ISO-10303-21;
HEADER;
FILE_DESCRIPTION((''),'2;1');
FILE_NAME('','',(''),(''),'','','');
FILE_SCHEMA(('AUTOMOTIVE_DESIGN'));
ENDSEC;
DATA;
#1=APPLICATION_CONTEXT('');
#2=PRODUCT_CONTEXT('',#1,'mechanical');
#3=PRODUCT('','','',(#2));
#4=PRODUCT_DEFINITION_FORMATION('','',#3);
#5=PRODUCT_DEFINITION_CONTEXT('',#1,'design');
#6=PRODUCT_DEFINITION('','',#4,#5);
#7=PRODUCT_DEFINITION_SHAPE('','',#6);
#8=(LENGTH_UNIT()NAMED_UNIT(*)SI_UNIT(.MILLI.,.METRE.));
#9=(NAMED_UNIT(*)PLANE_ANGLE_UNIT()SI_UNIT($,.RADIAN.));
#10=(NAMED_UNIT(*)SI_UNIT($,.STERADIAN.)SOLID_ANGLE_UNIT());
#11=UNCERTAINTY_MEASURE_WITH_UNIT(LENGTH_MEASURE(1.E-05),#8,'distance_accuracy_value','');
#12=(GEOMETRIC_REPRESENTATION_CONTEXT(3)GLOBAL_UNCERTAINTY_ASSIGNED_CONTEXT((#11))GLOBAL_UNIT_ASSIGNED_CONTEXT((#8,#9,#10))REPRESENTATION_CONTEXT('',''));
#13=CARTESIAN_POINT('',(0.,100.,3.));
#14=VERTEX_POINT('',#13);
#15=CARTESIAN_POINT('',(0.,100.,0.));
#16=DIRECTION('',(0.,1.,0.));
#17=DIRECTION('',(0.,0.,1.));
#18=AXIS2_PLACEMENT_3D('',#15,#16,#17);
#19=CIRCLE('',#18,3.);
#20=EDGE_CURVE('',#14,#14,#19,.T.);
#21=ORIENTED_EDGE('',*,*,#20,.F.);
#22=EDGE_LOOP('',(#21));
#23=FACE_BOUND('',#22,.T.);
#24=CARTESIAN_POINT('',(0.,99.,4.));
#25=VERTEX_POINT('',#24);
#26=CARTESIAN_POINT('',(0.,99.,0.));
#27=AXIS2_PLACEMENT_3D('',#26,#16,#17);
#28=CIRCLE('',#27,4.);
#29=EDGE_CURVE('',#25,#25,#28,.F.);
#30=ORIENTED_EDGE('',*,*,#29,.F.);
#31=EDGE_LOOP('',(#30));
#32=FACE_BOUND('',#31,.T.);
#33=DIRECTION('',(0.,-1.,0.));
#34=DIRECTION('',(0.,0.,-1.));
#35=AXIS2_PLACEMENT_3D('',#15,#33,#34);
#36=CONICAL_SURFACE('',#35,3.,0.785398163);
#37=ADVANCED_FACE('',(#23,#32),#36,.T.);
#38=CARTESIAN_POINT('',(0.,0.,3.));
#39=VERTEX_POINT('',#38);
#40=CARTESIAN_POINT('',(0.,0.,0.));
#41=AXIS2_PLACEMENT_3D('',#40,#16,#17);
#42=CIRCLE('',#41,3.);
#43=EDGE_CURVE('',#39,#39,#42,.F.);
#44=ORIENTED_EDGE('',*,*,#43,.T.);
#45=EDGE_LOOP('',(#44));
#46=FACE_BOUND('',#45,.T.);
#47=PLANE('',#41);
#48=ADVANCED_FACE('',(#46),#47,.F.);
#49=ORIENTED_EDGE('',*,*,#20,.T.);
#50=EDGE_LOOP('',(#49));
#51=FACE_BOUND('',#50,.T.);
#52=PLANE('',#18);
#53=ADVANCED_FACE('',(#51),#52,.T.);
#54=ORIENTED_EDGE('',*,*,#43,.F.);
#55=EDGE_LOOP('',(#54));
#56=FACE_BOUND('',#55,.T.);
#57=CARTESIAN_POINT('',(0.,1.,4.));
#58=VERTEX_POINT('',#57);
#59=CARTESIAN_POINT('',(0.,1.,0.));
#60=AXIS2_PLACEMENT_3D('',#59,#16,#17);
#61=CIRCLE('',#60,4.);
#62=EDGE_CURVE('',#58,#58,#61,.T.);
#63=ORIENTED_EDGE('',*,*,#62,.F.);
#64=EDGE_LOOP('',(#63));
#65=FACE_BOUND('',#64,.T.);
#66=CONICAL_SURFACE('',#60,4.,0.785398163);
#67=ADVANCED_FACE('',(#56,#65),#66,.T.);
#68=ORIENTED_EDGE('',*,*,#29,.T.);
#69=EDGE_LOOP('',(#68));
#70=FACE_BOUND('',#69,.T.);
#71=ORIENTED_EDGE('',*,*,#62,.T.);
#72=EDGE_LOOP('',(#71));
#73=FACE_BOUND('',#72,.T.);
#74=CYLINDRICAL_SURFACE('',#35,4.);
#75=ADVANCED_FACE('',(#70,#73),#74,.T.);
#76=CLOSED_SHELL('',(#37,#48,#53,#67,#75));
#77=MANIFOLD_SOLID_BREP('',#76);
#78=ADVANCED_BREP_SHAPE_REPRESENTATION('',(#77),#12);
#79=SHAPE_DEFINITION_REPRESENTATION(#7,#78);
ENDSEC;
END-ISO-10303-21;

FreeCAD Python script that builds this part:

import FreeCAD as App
import Part
import Sketcher

V = App.Vector


def edges_at(feature, points):
    """Names of the edges that pass closest to the given points."""
    edges = feature.Shape.Edges
    near = lambda p: min(range(len(edges)), key=lambda i: edges[i].distToShape(Part.Vertex(*p))[0])
    return sorted({f"Edge{near(p) + 1}" for p in points})

doc = App.newDocument("Part")
body = doc.addObject("PartDesign::Body", "Body")

# Sketch on XZ plane
sketch1 = doc.addObject("Sketcher::SketchObject", "Sketch")
body.addObject(sketch1)
sketch1.AttachmentSupport = (doc.XZ_Plane, [""])
sketch1.MapMode = "FlatFace"
sketch1.addGeometry(Part.Circle(V(0, 0, 0), V(0, 0, 1), 4), False)
sketch1.addConstraint([
    Sketcher.Constraint("Coincident", 0, 3, -1, 1),
    Sketcher.Constraint("Diameter", 0, 8.0),
])
pad1 = doc.addObject("PartDesign::Pad", "Pad")
body.addObject(pad1)
pad1.Profile = sketch1
pad1.Length = 100
pad1.Reversed = True
doc.recompute()

chamfer = doc.addObject("PartDesign::Chamfer", "Chamfer")
body.addObject(chamfer)
chamfer.Base = (pad1, edges_at(pad1, [(-4, 0, 0), (-4, 100, 0)]))
chamfer.Size = 1

doc.recompute()
